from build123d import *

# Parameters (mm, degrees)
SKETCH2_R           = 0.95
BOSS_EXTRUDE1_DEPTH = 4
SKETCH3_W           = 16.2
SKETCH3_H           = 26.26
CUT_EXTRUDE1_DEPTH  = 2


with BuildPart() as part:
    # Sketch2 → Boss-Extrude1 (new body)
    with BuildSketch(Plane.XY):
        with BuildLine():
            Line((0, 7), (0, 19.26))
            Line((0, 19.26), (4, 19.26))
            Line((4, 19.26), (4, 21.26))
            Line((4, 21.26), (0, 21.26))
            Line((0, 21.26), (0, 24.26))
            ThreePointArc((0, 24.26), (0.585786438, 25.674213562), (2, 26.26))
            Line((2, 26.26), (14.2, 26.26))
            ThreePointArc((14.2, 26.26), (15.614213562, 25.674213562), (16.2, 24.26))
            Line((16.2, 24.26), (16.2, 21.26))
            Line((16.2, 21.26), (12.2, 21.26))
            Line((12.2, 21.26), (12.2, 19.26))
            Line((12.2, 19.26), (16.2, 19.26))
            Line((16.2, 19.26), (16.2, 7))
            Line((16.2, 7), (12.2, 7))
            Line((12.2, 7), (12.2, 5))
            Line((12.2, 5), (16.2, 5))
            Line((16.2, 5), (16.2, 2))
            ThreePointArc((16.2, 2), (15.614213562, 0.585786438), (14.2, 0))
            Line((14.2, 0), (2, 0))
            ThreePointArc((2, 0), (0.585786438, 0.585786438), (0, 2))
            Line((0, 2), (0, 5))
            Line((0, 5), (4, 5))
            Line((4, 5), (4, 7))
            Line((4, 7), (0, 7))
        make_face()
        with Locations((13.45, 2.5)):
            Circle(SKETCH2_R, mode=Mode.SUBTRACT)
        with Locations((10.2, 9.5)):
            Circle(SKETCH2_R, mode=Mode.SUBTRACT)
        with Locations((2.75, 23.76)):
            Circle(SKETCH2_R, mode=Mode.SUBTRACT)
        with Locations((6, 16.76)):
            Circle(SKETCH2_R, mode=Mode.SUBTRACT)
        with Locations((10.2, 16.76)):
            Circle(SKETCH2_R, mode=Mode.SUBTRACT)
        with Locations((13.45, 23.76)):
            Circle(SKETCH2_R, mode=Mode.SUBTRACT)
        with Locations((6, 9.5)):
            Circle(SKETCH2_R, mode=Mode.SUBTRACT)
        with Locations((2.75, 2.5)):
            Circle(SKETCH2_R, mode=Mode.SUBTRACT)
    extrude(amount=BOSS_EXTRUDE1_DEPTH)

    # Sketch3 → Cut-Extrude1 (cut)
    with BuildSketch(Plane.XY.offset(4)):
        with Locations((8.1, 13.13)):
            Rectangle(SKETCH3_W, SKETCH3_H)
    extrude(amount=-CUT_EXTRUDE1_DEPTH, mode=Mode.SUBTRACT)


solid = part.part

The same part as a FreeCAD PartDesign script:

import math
import FreeCAD as App
import Part
import Sketcher

V = App.Vector

doc = App.newDocument("Part")
params = doc.addObject("Spreadsheet::Sheet", "Params")
for row, (alias, value) in enumerate([
    ("sketch1_radius", "2 mm"),
    ("sketch1_diameter", "1.9 mm"),
    ("sketch1_width", "4 mm"),
    ("sketch1_height", "2 mm"),
    ("sketch1_height2", "3 mm"),
    ("pad1_length", "4 mm"),
    ("sketch2_width", "16.2 mm"),
    ("sketch2_height", "26.26 mm"),
    ("pocket1_length", "2 mm"),
], start=1):
    params.set(f"A{row}", alias)
    params.set(f"B{row}", "=" + value)
    params.setAlias(f"B{row}", alias)

body = doc.addObject("PartDesign::Body", "Body")

sketch1 = body.newObject("Sketcher::SketchObject", "Sketch")
sketch1.AttachmentSupport = (doc.getObject("XY_Plane"), [""])
sketch1.MapMode = "FlatFace"
sketch1.addGeometry([
    Part.LineSegment(V(0, 19.26, 0), V(0, 7, 0)),
    Part.LineSegment(V(0, 7, 0), V(4, 7, 0)),
    Part.LineSegment(V(4, 7, 0), V(4, 5, 0)),
    Part.LineSegment(V(4, 5, 0), V(0, 5, 0)),
    Part.LineSegment(V(0, 5, 0), V(0, 2, 0)),
    Part.ArcOfCircle(Part.Circle(V(2, 2, 0), V(0, 0, 1), 2), math.radians(-180), math.radians(-90)),
    Part.LineSegment(V(2, 0, 0), V(14.2, 0, 0)),
    Part.ArcOfCircle(Part.Circle(V(14.2, 2, 0), V(0, 0, 1), 2), math.radians(-90), math.radians(0)),
    Part.LineSegment(V(16.2, 2, 0), V(16.2, 5, 0)),
    Part.LineSegment(V(16.2, 5, 0), V(12.2, 5, 0)),
    Part.LineSegment(V(12.2, 5, 0), V(12.2, 7, 0)),
    Part.LineSegment(V(12.2, 7, 0), V(16.2, 7, 0)),
    Part.LineSegment(V(16.2, 7, 0), V(16.2, 19.26, 0)),
    Part.LineSegment(V(16.2, 19.26, 0), V(12.2, 19.26, 0)),
    Part.LineSegment(V(12.2, 19.26, 0), V(12.2, 21.26, 0)),
    Part.LineSegment(V(12.2, 21.26, 0), V(16.2, 21.26, 0)),
    Part.LineSegment(V(16.2, 21.26, 0), V(16.2, 24.26, 0)),
    Part.ArcOfCircle(Part.Circle(V(14.2, 24.26, 0), V(0, 0, 1), 2), math.radians(0), math.radians(90)),
    Part.LineSegment(V(14.2, 26.26, 0), V(2, 26.26, 0)),
    Part.ArcOfCircle(Part.Circle(V(2, 24.26, 0), V(0, 0, 1), 2), math.radians(90), math.radians(180)),
    Part.LineSegment(V(0, 24.26, 0), V(0, 21.26, 0)),
    Part.LineSegment(V(0, 21.26, 0), V(4, 21.26, 0)),
    Part.LineSegment(V(4, 21.26, 0), V(4, 19.26, 0)),
    Part.LineSegment(V(4, 19.26, 0), V(0, 19.26, 0)),
    Part.Circle(V(13.45, 2.5, 0), V(0, 0, 1), 0.95),
    Part.Circle(V(10.2, 9.5, 0), V(0, 0, 1), 0.95),
    Part.Circle(V(2.75, 2.5, 0), V(0, 0, 1), 0.95),
    Part.Circle(V(6, 9.5, 0), V(0, 0, 1), 0.95),
    Part.Circle(V(10.2, 16.76, 0), V(0, 0, 1), 0.95),
    Part.Circle(V(13.45, 23.76, 0), V(0, 0, 1), 0.95),
    Part.Circle(V(6, 16.76, 0), V(0, 0, 1), 0.95),
    Part.Circle(V(2.75, 23.76, 0), V(0, 0, 1), 0.95),
], False)
sketch1.addConstraint([
    Sketcher.Constraint("Coincident", 0, 2, 1, 1),
    Sketcher.Constraint("Coincident", 1, 2, 2, 1),
    Sketcher.Constraint("Coincident", 2, 2, 3, 1),
    Sketcher.Constraint("Coincident", 3, 2, 4, 1),
    Sketcher.Constraint("Tangent", 4, 2, 5, 1),
    Sketcher.Constraint("Tangent", 5, 2, 6, 1),
    Sketcher.Constraint("Tangent", 6, 2, 7, 1),
    Sketcher.Constraint("Tangent", 7, 2, 8, 1),
    Sketcher.Constraint("Coincident", 8, 2, 9, 1),
    Sketcher.Constraint("Coincident", 9, 2, 10, 1),
    Sketcher.Constraint("Coincident", 10, 2, 11, 1),
    Sketcher.Constraint("Coincident", 11, 2, 12, 1),
    Sketcher.Constraint("Coincident", 12, 2, 13, 1),
    Sketcher.Constraint("Coincident", 13, 2, 14, 1),
    Sketcher.Constraint("Coincident", 14, 2, 15, 1),
    Sketcher.Constraint("Coincident", 15, 2, 16, 1),
    Sketcher.Constraint("Tangent", 16, 2, 17, 1),
    Sketcher.Constraint("Tangent", 17, 2, 18, 1),
    Sketcher.Constraint("Tangent", 18, 2, 19, 1),
    Sketcher.Constraint("Tangent", 19, 2, 20, 1),
    Sketcher.Constraint("Coincident", 20, 2, 21, 1),
    Sketcher.Constraint("Coincident", 21, 2, 22, 1),
    Sketcher.Constraint("Coincident", 22, 2, 23, 1),
    Sketcher.Constraint("Coincident", 23, 2, 0, 1),
    Sketcher.Constraint("Vertical", 0),
    Sketcher.Constraint("Horizontal", 1),
    Sketcher.Constraint("Vertical", 2),
    Sketcher.Constraint("Horizontal", 3),
    Sketcher.Constraint("Vertical", 4),
    Sketcher.Constraint("Horizontal", 6),
    Sketcher.Constraint("Vertical", 8),
    Sketcher.Constraint("Horizontal", 9),
    Sketcher.Constraint("Vertical", 10),
    Sketcher.Constraint("Horizontal", 11),
    Sketcher.Constraint("Vertical", 12),
    Sketcher.Constraint("Horizontal", 13),
    Sketcher.Constraint("Vertical", 14),
    Sketcher.Constraint("Horizontal", 15),
    Sketcher.Constraint("Vertical", 16),
    Sketcher.Constraint("Horizontal", 18),
    Sketcher.Constraint("Vertical", 20),
    Sketcher.Constraint("Horizontal", 21),
    Sketcher.Constraint("Vertical", 22),
    Sketcher.Constraint("Horizontal", 23),
    Sketcher.Constraint("Equal", 5, 7),
    Sketcher.Constraint("Equal", 7, 17),
    Sketcher.Constraint("Equal", 17, 19),
    Sketcher.Constraint("Equal", 24, 25),
    Sketcher.Constraint("Equal", 25, 26),
    Sketcher.Constraint("Equal", 26, 27),
    Sketcher.Constraint("Equal", 27, 28),
    Sketcher.Constraint("Equal", 28, 29),
    Sketcher.Constraint("Equal", 29, 30),
    Sketcher.Constraint("Equal", 30, 31),
    Sketcher.Constraint("PointOnObject", 0, 2, -2),
    Sketcher.Constraint("PointOnObject", 3, 2, -2),
    Sketcher.Constraint("PointOnObject", 5, 2, -1),
    Sketcher.Constraint("PointOnObject", 19, 2, -2),
    Sketcher.Constraint("Horizontal", 24, 3, 26, 3),
    Sketcher.Constraint("Horizontal", 25, 3, 27, 3),
    Sketcher.Constraint("Horizontal", 28, 3, 30, 3),
    Sketcher.Constraint("Horizontal", 29, 3, 31, 3),
    Sketcher.Constraint("Horizontal", 3, 2, 8, 2),
    Sketcher.Constraint("Horizontal", 1, 2, 10, 2),
    Sketcher.Constraint("Horizontal", 15, 2, 20, 2),
    Sketcher.Constraint("Horizontal", 13, 2, 22, 2),
    Sketcher.Constraint("Vertical", 7, 3, 17, 3),
    Sketcher.Constraint("Vertical", 25, 3, 28, 3),
    Sketcher.Constraint("Vertical", 24, 3, 29, 3),
    Sketcher.Constraint("Vertical", 27, 3, 30, 3),
    Sketcher.Constraint("Vertical", 26, 3, 31, 3),
    Sketcher.Constraint("Vertical", 8, 2, 11, 2),
    Sketcher.Constraint("Vertical", 10, 2, 13, 2),
    Sketcher.Constraint("Vertical", 2, 2, 21, 2),
    Sketcher.Constraint("Equal", 3, 9),
    Sketcher.Constraint("Equal", 10, 14),
    Sketcher.Constraint("Equal", 8, 16),
    Sketcher.Constraint("Radius", 5, 2.0),
    Sketcher.Constraint("Diameter", 24, 1.9),
    Sketcher.Constraint("DistanceX", 1, 1, 1, 2, 4.0),
    Sketcher.Constraint("DistanceY", 2, 2, 2, 1, 2.0),
    Sketcher.Constraint("DistanceY", 4, 2, 4, 1, 3.0),
    Sketcher.Constraint("DistanceX", 6, 1, 6, 2, 12.2),
    Sketcher.Constraint("DistanceX", -1, 1, 27, 3, 6.0),
    Sketcher.Constraint("DistanceY", 24, 3, 25, 3, 7.0),
    Sketcher.Constraint("DistanceX", 25, 3, 7, 3, 4.0),
    Sketcher.Constraint("DistanceY", 28, 3, 29, 3, 7.0),
    Sketcher.Constraint("DistanceY", 0, 2, 0, 1, 12.26),
    Sketcher.Constraint("DistanceY", -1, 1, 24, 3, 2.5),
    Sketcher.Constraint("DistanceX", 26, 3, 24, 3, 10.7),
    Sketcher.Constraint("DistanceY", 28, 3, 17, 3, 7.5),
    Sketcher.Constraint("DistanceX", -1, 1, 24, 3, 13.45),
])
sketch1.setExpression("Constraints[77]", "Params.sketch1_radius")
sketch1.setExpression("Constraints[78]", "Params.sketch1_diameter")
sketch1.setExpression("Constraints[79]", "Params.sketch1_width")
sketch1.setExpression("Constraints[80]", "Params.sketch1_height")
sketch1.setExpression("Constraints[81]", "Params.sketch1_height2")
pad1 = body.newObject("PartDesign::Pad", "Pad")
pad1.Profile = sketch1
pad1.setExpression("Length", "Params.pad1_length")

sketch2 = body.newObject("Sketcher::SketchObject", "Sketch001")
sketch2.AttachmentSupport = (doc.getObject("XY_Plane"), [""])
sketch2.MapMode = "FlatFace"
sketch2.AttachmentOffset = App.Placement(V(0, 0, 4), App.Rotation())
sketch2.addGeometry([
    Part.LineSegment(V(0, 26.26, 0), V(0, 0, 0)),
    Part.LineSegment(V(0, 0, 0), V(16.2, 0, 0)),
    Part.LineSegment(V(16.2, 0, 0), V(16.2, 26.26, 0)),
    Part.LineSegment(V(16.2, 26.26, 0), V(0, 26.26, 0)),
], False)
sketch2.addConstraint([
    Sketcher.Constraint("Coincident", 0, 2, 1, 1),
    Sketcher.Constraint("Coincident", 1, 2, 2, 1),
    Sketcher.Constraint("Coincident", 2, 2, 3, 1),
    Sketcher.Constraint("Coincident", 3, 2, 0, 1),
    Sketcher.Constraint("Vertical", 0),
    Sketcher.Constraint("Horizontal", 1),
    Sketcher.Constraint("Vertical", 2),
    Sketcher.Constraint("Horizontal", 3),
    Sketcher.Constraint("Coincident", 0, 2, -1, 1),
    Sketcher.Constraint("DistanceX", 1, 1, 1, 2, 16.2),
    Sketcher.Constraint("DistanceY", 0, 2, 0, 1, 26.26),
])
sketch2.setExpression("Constraints[9]", "Params.sketch2_width")
sketch2.setExpression("Constraints[10]", "Params.sketch2_height")
pocket1 = body.newObject("PartDesign::Pocket", "Pocket")
pocket1.Profile = sketch2
pocket1.setExpression("Length", "Params.pocket1_length")

doc.recompute()
